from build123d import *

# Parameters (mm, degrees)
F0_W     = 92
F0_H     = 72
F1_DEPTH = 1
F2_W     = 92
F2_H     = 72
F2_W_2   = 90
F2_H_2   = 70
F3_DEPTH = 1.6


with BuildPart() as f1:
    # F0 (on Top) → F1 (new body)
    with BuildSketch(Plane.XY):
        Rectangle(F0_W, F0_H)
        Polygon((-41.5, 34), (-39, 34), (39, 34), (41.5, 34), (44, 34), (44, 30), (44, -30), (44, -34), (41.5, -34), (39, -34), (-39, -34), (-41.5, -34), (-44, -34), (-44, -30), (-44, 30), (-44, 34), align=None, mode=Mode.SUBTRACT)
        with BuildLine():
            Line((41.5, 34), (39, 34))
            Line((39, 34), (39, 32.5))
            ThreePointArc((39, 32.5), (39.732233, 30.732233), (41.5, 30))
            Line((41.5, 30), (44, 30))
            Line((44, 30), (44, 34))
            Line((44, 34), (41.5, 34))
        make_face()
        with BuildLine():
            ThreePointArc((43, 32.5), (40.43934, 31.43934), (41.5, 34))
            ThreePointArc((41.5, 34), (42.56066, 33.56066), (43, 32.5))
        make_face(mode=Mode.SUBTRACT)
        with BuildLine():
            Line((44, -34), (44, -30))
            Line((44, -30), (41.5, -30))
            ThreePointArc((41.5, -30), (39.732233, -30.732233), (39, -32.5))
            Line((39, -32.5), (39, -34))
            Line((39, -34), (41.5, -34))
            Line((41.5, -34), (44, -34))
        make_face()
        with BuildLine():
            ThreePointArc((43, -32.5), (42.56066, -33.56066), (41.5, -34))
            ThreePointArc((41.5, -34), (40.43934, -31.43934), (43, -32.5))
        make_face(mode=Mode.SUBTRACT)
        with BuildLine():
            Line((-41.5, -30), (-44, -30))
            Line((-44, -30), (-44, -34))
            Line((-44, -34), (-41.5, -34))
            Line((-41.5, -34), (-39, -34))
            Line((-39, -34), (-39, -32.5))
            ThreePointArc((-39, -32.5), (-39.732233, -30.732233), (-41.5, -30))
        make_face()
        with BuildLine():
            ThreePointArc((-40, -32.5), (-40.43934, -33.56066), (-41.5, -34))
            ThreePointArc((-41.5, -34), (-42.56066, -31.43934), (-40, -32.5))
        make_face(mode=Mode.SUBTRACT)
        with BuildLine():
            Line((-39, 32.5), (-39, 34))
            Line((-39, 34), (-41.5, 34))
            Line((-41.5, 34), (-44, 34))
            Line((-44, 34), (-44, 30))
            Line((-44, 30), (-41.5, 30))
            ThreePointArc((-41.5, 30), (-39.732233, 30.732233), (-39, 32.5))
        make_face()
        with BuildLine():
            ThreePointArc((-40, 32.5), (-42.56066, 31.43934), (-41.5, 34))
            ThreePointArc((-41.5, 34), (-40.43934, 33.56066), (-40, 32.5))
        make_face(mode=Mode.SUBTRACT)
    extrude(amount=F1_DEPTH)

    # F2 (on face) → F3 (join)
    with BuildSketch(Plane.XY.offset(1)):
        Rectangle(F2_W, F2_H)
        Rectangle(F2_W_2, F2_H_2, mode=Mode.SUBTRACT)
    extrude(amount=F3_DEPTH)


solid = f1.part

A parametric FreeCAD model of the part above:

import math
import FreeCAD as App
import Part
import Sketcher

V = App.Vector
Q = App.Units.Quantity

doc = App.newDocument("Part")
body = doc.addObject("PartDesign::Body", "Body")

# Sketch on XY plane
sketch1 = body.newObject("Sketcher::SketchObject", "Sketch")
sketch1.AttachmentSupport = (doc.getObject("XY_Plane"), [""])
sketch1.MapMode = "FlatFace"
sketch1.addGeometry([
    Part.LineSegment(V(-46, 36, 0), V(-46, -36, 0)),  # 0
    Part.LineSegment(V(-46, -36, 0), V(46, -36, 0)),  # 1
    Part.LineSegment(V(46, -36, 0), V(46, 36, 0)),  # 2
    Part.LineSegment(V(46, 36, 0), V(-46, 36, 0)),  # 3
    Part.ArcOfCircle(Part.Circle(V(-41.5, -32.5, 0), V(0, 0, 1), 1.5), math.radians(0.000004), math.radians(269.999996)),  # 4
    Part.ArcOfCircle(Part.Circle(V(-41.500001, -32.499999, 0), V(0, 0, 1), 1.500001), math.radians(-89.999978), math.radians(-0.000022)),  # 5
    Part.ArcOfCircle(Part.Circle(V(41.5, -32.5, 0), V(0, 0, 1), 1.5), math.radians(0.000004), math.radians(269.999996)),  # 6
    Part.ArcOfCircle(Part.Circle(V(41.499999, -32.499999, 0), V(0, 0, 1), 1.500001), math.radians(-89.999978), math.radians(-0.000022)),  # 7
    Part.ArcOfCircle(Part.Circle(V(-41.500001, 32.499999, 0), V(0, 0, 1), 1.500001), math.radians(0.000022), math.radians(89.999978)),  # 8
    Part.ArcOfCircle(Part.Circle(V(-41.5, 32.5, 0), V(0, 0, 1), 1.5), math.radians(90.000004), math.radians(359.999996)),  # 9
    Part.LineSegment(V(-39, 34, 0), V(39, 34, 0)),  # 10
    Part.LineSegment(V(39, 34, 0), V(39, 32.5, 0)),  # 11
    Part.ArcOfCircle(Part.Circle(V(41.5, 32.5, 0), V(0, 0, 1), 2.5), math.radians(179.999996), math.radians(270.000004)),  # 12
    Part.LineSegment(V(41.5, 30, 0), V(44, 30, 0)),  # 13
    Part.LineSegment(V(44, 30, 0), V(44, -30, 0)),  # 14
    Part.LineSegment(V(44, -30, 0), V(41.5, -30, 0)),  # 15
    Part.ArcOfCircle(Part.Circle(V(41.5, -32.5, 0), V(0, 0, 1), 2.5), math.radians(89.999996), math.radians(180.000004)),  # 16
    Part.LineSegment(V(39, -32.5, 0), V(39, -34, 0)),  # 17
    Part.LineSegment(V(39, -34, 0), V(-39, -34, 0)),  # 18
    Part.LineSegment(V(-39, -34, 0), V(-39, -32.5, 0)),  # 19
    Part.ArcOfCircle(Part.Circle(V(-41.5, -32.5, 0), V(0, 0, 1), 2.5), math.radians(-0.000004), math.radians(90.000004)),  # 20
    Part.LineSegment(V(-41.5, -30, 0), V(-44, -30, 0)),  # 21
    Part.LineSegment(V(-44, -30, 0), V(-44, 30, 0)),  # 22
    Part.LineSegment(V(-44, 30, 0), V(-41.5, 30, 0)),  # 23
    Part.ArcOfCircle(Part.Circle(V(-41.5, 32.5, 0), V(0, 0, 1), 2.5), math.radians(-90.000004), math.radians(0.000004)),  # 24
    Part.LineSegment(V(-39, 32.5, 0), V(-39, 34, 0)),  # 25
    Part.ArcOfCircle(Part.Circle(V(41.499999, 32.499999, 0), V(0, 0, 1), 1.500001), math.radians(0.000022), math.radians(89.999978)),  # 26
    Part.ArcOfCircle(Part.Circle(V(41.5, 32.5, 0), V(0, 0, 1), 1.5), math.radians(90.000004), math.radians(359.999996)),  # 27
], False)
sketch1.addConstraint([
    Sketcher.Constraint("Coincident", 0, 2, 1, 1),
    Sketcher.Constraint("Coincident", 1, 2, 2, 1),
    Sketcher.Constraint("Coincident", 2, 2, 3, 1),
    Sketcher.Constraint("Coincident", 3, 2, 0, 1),
    Sketcher.Constraint("Tangent", 4, 1, 5, 2),
    Sketcher.Constraint("Coincident", 5, 1, 4, 2),
    Sketcher.Constraint("Tangent", 6, 1, 7, 2),
    Sketcher.Constraint("Coincident", 7, 1, 6, 2),
    Sketcher.Constraint("Tangent", 8, 1, 9, 2),
    Sketcher.Constraint("Coincident", 9, 1, 8, 2),
    Sketcher.Constraint("Coincident", 10, 2, 11, 1),
    Sketcher.Constraint("Tangent", 11, 2, 12, 1),
    Sketcher.Constraint("Tangent", 12, 2, 13, 1),
    Sketcher.Constraint("Coincident", 13, 2, 14, 1),
    Sketcher.Constraint("Coincident", 14, 2, 15, 1),
    Sketcher.Constraint("Tangent", 15, 2, 16, 1),
    Sketcher.Constraint("Tangent", 16, 2, 17, 1),
    Sketcher.Constraint("Coincident", 17, 2, 18, 1),
    Sketcher.Constraint("Coincident", 18, 2, 19, 1),
    Sketcher.Constraint("Tangent", 19, 2, 20, 1),
    Sketcher.Constraint("Tangent", 20, 2, 21, 1),
    Sketcher.Constraint("Coincident", 21, 2, 22, 1),
    Sketcher.Constraint("Coincident", 22, 2, 23, 1),
    Sketcher.Constraint("Tangent", 23, 2, 24, 1),
    Sketcher.Constraint("Tangent", 24, 2, 25, 1),
    Sketcher.Constraint("Coincident", 25, 2, 10, 1),
    Sketcher.Constraint("Tangent", 26, 1, 27, 2),
    Sketcher.Constraint("Coincident", 27, 1, 26, 2),
    Sketcher.Constraint("Vertical", 0),
    Sketcher.Constraint("Horizontal", 1),
    Sketcher.Constraint("Vertical", 2),
    Sketcher.Constraint("Horizontal", 3),
    Sketcher.Constraint("Horizontal", 10),
    Sketcher.Constraint("Vertical", 11),
    Sketcher.Constraint("Horizontal", 13),
    Sketcher.Constraint("Vertical", 14),
    Sketcher.Constraint("Horizontal", 15),
    Sketcher.Constraint("Vertical", 17),
    Sketcher.Constraint("Horizontal", 18),
    Sketcher.Constraint("Vertical", 19),
    Sketcher.Constraint("Horizontal", 21),
    Sketcher.Constraint("Vertical", 22),
    Sketcher.Constraint("Horizontal", 23),
    Sketcher.Constraint("Vertical", 25),
    Sketcher.Constraint("Coincident", 16, 3, 6, 3),
    Sketcher.Constraint("Coincident", 20, 3, 4, 3),
    Sketcher.Constraint("Coincident", 24, 3, 8, 3),
    Sketcher.Constraint("Coincident", 26, 3, 12, 3),
    Sketcher.Constraint("Equal", 5, 6),
    Sketcher.Constraint("Equal", 7, 8),
    Sketcher.Constraint("Equal", 12, 16),
    Sketcher.Constraint("Equal", 16, 20),
    Sketcher.Constraint("Equal", 20, 24),
    Sketcher.Constraint("Equal", 9, 26),
    Sketcher.Constraint("Symmetric", 6, 3, 8, 3, -1, 1),
    Sketcher.Constraint("Symmetric", 4, 3, 12, 3, -1, 1),
    Sketcher.Constraint("Symmetric", 0, 2, 2, 2, -1, 1),
    Sketcher.Constraint("Symmetric", 4, 3, 6, 3, -2),
    Sketcher.Constraint("Horizontal", 20, 3, 4, 1),
    Sketcher.Constraint("Horizontal", 4, 1, 6, 1),
    Sketcher.Constraint("Horizontal", 27, 3, 8, 1),
    Sketcher.Constraint("Horizontal", 9, 1, 10, 2),
    Sketcher.Constraint("Horizontal", 7, 1, 17, 2),
    Sketcher.Constraint("Horizontal", 24, 2, 26, 1),
    Sketcher.Constraint("Vertical", 24, 3, 5, 1),
    Sketcher.Constraint("Vertical", 27, 3, 7, 1),
    Sketcher.Constraint("Vertical", 5, 1, 9, 1),
    Sketcher.Constraint("Vertical", 15, 2, 27, 1),
    Sketcher.Constraint("Equal", 15, 21),
    Sketcher.Constraint("Radius", 4, Q("1.5 mm")),
    Sketcher.Constraint("Radius", 12, Q("2.5 mm")),
    Sketcher.Constraint("DistanceX", 1, 1, 1, 2, Q("92 mm")),
    Sketcher.Constraint("DistanceX", 10, 1, 10, 2, Q("78 mm")),
    Sketcher.Constraint("DistanceY", 0, 2, 0, 1, Q("72 mm")),
    Sketcher.Constraint("DistanceY", 14, 2, 14, 1, Q("60 mm")),
    Sketcher.Constraint("DistanceX", 13, 1, 13, 2, Q("2.5 mm")),
])
pad1 = body.newObject("PartDesign::Pad", "Pad")
pad1.Profile = sketch1
pad1.Length = 1

# Sketch on XY plane
sketch2 = body.newObject("Sketcher::SketchObject", "Sketch001")
sketch2.AttachmentSupport = (doc.getObject("XY_Plane"), [""])
sketch2.MapMode = "FlatFace"
sketch2.AttachmentOffset = App.Placement(V(0, 0, 1), App.Rotation())
sketch2.addGeometry([
    Part.LineSegment(V(-46, 36, 0), V(-46, -36, 0)),  # 0
    Part.LineSegment(V(-46, -36, 0), V(46, -36, 0)),  # 1
    Part.LineSegment(V(46, -36, 0), V(46, 36, 0)),  # 2
    Part.LineSegment(V(46, 36, 0), V(-46, 36, 0)),  # 3
    Part.LineSegment(V(45, -35, 0), V(-45, -35, 0)),  # 4
    Part.LineSegment(V(-45, -35, 0), V(-45, 35, 0)),  # 5
    Part.LineSegment(V(-45, 35, 0), V(45, 35, 0)),  # 6
    Part.LineSegment(V(45, 35, 0), V(45, -35, 0)),  # 7
], False)
sketch2.addConstraint([
    Sketcher.Constraint("Coincident", 0, 2, 1, 1),
    Sketcher.Constraint("Coincident", 1, 2, 2, 1),
    Sketcher.Constraint("Coincident", 2, 2, 3, 1),
    Sketcher.Constraint("Coincident", 3, 2, 0, 1),
    Sketcher.Constraint("Coincident", 4, 2, 5, 1),
    Sketcher.Constraint("Coincident", 5, 2, 6, 1),
    Sketcher.Constraint("Coincident", 6, 2, 7, 1),
    Sketcher.Constraint("Coincident", 7, 2, 4, 1),
    Sketcher.Constraint("Vertical", 0),
    Sketcher.Constraint("Horizontal", 1),
    Sketcher.Constraint("Vertical", 2),
    Sketcher.Constraint("Horizontal", 3),
    Sketcher.Constraint("Horizontal", 4),
    Sketcher.Constraint("Vertical", 5),
    Sketcher.Constraint("Horizontal", 6),
    Sketcher.Constraint("Vertical", 7),
    Sketcher.Constraint("Symmetric", 0, 2, 2, 2, -1, 1),
    Sketcher.Constraint("Symmetric", 4, 2, 6, 2, -1, 1),
    Sketcher.Constraint("DistanceX", 1, 1, 1, 2, Q("92 mm")),
    Sketcher.Constraint("DistanceX", 4, 2, 4, 1, Q("90 mm")),
    Sketcher.Constraint("DistanceY", 0, 2, 0, 1, Q("72 mm")),
    Sketcher.Constraint("DistanceY", 5, 1, 5, 2, Q("70 mm")),
])
pad2 = body.newObject("PartDesign::Pad", "Pad001")
pad2.Profile = sketch2
pad2.Length = 1.6

doc.recompute()
